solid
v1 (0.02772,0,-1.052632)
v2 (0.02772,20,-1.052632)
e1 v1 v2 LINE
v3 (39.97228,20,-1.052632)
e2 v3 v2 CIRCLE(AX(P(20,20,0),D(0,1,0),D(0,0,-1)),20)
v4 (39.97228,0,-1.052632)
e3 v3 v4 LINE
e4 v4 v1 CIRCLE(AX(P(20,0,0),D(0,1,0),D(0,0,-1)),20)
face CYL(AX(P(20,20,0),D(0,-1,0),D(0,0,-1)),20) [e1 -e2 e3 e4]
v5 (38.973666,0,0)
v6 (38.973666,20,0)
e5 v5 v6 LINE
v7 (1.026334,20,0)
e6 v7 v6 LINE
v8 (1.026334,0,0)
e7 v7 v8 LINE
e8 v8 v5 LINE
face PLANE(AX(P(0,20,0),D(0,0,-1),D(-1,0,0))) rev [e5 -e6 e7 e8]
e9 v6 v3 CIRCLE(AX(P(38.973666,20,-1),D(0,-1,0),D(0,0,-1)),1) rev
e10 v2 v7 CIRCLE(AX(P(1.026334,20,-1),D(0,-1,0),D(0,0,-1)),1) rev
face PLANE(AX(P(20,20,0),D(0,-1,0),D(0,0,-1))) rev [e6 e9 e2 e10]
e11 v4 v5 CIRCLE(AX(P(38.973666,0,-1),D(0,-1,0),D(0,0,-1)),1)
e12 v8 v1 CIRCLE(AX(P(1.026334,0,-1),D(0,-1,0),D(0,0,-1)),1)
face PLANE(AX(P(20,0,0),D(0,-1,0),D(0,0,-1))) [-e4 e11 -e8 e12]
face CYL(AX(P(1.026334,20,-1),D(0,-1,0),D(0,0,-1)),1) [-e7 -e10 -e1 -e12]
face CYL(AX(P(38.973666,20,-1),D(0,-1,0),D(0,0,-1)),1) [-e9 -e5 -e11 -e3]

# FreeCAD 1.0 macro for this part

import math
import FreeCAD as App
import Part
import Sketcher
from FreeCAD import Vector
Q = App.Units.Quantity


def edges_at(feature, points):
    """Names of the edges that pass closest to the given points."""
    edges = feature.Shape.Edges
    near = lambda p: min(range(len(edges)), key=lambda i: edges[i].distToShape(Part.Vertex(*p))[0])
    return sorted({f"Edge{near(p) + 1}" for p in points})

doc = App.newDocument("Part")
body = doc.addObject("PartDesign::Body", "Body")

# Sketch on XZ plane
sketch1 = body.newObject("Sketcher::SketchObject", "Sketch")
sketch1.AttachmentSupport = (doc.getObject("XZ_Plane"), [""])
sketch1.MapMode = "FlatFace"
sketch1.addGeometry([
    Part.LineSegment(Vector(0, 0, 0), Vector(40, 0, 0)),
    Part.ArcOfCircle(Part.Circle(Vector(20, 0, 0), Vector(0, 0, 1), 20), math.radians(180), math.radians(360)),
], False)
sketch1.addConstraint([
    Sketcher.Constraint("Coincident", 0, 1, 1, 1),
    Sketcher.Constraint("Coincident", 1, 2, 0, 2),
    Sketcher.Constraint("Horizontal", 0),
    Sketcher.Constraint("Coincident", 0, 1, -1, 1),
    Sketcher.Constraint("PointOnObject", 1, 3, -1),
    Sketcher.Constraint("Radius", 1, Q("20 mm")),
])
pad1 = body.newObject("PartDesign::Pad", "Pad")
pad1.Profile = sketch1
pad1.Length = 20
pad1.Reversed = True
doc.recompute()

fillet = body.newObject("PartDesign::Fillet", "Fillet")
fillet.Base = (pad1, edges_at(pad1, [(40, 10, 0), (0, 10, 0)]))
fillet.Radius = 1

doc.recompute()
